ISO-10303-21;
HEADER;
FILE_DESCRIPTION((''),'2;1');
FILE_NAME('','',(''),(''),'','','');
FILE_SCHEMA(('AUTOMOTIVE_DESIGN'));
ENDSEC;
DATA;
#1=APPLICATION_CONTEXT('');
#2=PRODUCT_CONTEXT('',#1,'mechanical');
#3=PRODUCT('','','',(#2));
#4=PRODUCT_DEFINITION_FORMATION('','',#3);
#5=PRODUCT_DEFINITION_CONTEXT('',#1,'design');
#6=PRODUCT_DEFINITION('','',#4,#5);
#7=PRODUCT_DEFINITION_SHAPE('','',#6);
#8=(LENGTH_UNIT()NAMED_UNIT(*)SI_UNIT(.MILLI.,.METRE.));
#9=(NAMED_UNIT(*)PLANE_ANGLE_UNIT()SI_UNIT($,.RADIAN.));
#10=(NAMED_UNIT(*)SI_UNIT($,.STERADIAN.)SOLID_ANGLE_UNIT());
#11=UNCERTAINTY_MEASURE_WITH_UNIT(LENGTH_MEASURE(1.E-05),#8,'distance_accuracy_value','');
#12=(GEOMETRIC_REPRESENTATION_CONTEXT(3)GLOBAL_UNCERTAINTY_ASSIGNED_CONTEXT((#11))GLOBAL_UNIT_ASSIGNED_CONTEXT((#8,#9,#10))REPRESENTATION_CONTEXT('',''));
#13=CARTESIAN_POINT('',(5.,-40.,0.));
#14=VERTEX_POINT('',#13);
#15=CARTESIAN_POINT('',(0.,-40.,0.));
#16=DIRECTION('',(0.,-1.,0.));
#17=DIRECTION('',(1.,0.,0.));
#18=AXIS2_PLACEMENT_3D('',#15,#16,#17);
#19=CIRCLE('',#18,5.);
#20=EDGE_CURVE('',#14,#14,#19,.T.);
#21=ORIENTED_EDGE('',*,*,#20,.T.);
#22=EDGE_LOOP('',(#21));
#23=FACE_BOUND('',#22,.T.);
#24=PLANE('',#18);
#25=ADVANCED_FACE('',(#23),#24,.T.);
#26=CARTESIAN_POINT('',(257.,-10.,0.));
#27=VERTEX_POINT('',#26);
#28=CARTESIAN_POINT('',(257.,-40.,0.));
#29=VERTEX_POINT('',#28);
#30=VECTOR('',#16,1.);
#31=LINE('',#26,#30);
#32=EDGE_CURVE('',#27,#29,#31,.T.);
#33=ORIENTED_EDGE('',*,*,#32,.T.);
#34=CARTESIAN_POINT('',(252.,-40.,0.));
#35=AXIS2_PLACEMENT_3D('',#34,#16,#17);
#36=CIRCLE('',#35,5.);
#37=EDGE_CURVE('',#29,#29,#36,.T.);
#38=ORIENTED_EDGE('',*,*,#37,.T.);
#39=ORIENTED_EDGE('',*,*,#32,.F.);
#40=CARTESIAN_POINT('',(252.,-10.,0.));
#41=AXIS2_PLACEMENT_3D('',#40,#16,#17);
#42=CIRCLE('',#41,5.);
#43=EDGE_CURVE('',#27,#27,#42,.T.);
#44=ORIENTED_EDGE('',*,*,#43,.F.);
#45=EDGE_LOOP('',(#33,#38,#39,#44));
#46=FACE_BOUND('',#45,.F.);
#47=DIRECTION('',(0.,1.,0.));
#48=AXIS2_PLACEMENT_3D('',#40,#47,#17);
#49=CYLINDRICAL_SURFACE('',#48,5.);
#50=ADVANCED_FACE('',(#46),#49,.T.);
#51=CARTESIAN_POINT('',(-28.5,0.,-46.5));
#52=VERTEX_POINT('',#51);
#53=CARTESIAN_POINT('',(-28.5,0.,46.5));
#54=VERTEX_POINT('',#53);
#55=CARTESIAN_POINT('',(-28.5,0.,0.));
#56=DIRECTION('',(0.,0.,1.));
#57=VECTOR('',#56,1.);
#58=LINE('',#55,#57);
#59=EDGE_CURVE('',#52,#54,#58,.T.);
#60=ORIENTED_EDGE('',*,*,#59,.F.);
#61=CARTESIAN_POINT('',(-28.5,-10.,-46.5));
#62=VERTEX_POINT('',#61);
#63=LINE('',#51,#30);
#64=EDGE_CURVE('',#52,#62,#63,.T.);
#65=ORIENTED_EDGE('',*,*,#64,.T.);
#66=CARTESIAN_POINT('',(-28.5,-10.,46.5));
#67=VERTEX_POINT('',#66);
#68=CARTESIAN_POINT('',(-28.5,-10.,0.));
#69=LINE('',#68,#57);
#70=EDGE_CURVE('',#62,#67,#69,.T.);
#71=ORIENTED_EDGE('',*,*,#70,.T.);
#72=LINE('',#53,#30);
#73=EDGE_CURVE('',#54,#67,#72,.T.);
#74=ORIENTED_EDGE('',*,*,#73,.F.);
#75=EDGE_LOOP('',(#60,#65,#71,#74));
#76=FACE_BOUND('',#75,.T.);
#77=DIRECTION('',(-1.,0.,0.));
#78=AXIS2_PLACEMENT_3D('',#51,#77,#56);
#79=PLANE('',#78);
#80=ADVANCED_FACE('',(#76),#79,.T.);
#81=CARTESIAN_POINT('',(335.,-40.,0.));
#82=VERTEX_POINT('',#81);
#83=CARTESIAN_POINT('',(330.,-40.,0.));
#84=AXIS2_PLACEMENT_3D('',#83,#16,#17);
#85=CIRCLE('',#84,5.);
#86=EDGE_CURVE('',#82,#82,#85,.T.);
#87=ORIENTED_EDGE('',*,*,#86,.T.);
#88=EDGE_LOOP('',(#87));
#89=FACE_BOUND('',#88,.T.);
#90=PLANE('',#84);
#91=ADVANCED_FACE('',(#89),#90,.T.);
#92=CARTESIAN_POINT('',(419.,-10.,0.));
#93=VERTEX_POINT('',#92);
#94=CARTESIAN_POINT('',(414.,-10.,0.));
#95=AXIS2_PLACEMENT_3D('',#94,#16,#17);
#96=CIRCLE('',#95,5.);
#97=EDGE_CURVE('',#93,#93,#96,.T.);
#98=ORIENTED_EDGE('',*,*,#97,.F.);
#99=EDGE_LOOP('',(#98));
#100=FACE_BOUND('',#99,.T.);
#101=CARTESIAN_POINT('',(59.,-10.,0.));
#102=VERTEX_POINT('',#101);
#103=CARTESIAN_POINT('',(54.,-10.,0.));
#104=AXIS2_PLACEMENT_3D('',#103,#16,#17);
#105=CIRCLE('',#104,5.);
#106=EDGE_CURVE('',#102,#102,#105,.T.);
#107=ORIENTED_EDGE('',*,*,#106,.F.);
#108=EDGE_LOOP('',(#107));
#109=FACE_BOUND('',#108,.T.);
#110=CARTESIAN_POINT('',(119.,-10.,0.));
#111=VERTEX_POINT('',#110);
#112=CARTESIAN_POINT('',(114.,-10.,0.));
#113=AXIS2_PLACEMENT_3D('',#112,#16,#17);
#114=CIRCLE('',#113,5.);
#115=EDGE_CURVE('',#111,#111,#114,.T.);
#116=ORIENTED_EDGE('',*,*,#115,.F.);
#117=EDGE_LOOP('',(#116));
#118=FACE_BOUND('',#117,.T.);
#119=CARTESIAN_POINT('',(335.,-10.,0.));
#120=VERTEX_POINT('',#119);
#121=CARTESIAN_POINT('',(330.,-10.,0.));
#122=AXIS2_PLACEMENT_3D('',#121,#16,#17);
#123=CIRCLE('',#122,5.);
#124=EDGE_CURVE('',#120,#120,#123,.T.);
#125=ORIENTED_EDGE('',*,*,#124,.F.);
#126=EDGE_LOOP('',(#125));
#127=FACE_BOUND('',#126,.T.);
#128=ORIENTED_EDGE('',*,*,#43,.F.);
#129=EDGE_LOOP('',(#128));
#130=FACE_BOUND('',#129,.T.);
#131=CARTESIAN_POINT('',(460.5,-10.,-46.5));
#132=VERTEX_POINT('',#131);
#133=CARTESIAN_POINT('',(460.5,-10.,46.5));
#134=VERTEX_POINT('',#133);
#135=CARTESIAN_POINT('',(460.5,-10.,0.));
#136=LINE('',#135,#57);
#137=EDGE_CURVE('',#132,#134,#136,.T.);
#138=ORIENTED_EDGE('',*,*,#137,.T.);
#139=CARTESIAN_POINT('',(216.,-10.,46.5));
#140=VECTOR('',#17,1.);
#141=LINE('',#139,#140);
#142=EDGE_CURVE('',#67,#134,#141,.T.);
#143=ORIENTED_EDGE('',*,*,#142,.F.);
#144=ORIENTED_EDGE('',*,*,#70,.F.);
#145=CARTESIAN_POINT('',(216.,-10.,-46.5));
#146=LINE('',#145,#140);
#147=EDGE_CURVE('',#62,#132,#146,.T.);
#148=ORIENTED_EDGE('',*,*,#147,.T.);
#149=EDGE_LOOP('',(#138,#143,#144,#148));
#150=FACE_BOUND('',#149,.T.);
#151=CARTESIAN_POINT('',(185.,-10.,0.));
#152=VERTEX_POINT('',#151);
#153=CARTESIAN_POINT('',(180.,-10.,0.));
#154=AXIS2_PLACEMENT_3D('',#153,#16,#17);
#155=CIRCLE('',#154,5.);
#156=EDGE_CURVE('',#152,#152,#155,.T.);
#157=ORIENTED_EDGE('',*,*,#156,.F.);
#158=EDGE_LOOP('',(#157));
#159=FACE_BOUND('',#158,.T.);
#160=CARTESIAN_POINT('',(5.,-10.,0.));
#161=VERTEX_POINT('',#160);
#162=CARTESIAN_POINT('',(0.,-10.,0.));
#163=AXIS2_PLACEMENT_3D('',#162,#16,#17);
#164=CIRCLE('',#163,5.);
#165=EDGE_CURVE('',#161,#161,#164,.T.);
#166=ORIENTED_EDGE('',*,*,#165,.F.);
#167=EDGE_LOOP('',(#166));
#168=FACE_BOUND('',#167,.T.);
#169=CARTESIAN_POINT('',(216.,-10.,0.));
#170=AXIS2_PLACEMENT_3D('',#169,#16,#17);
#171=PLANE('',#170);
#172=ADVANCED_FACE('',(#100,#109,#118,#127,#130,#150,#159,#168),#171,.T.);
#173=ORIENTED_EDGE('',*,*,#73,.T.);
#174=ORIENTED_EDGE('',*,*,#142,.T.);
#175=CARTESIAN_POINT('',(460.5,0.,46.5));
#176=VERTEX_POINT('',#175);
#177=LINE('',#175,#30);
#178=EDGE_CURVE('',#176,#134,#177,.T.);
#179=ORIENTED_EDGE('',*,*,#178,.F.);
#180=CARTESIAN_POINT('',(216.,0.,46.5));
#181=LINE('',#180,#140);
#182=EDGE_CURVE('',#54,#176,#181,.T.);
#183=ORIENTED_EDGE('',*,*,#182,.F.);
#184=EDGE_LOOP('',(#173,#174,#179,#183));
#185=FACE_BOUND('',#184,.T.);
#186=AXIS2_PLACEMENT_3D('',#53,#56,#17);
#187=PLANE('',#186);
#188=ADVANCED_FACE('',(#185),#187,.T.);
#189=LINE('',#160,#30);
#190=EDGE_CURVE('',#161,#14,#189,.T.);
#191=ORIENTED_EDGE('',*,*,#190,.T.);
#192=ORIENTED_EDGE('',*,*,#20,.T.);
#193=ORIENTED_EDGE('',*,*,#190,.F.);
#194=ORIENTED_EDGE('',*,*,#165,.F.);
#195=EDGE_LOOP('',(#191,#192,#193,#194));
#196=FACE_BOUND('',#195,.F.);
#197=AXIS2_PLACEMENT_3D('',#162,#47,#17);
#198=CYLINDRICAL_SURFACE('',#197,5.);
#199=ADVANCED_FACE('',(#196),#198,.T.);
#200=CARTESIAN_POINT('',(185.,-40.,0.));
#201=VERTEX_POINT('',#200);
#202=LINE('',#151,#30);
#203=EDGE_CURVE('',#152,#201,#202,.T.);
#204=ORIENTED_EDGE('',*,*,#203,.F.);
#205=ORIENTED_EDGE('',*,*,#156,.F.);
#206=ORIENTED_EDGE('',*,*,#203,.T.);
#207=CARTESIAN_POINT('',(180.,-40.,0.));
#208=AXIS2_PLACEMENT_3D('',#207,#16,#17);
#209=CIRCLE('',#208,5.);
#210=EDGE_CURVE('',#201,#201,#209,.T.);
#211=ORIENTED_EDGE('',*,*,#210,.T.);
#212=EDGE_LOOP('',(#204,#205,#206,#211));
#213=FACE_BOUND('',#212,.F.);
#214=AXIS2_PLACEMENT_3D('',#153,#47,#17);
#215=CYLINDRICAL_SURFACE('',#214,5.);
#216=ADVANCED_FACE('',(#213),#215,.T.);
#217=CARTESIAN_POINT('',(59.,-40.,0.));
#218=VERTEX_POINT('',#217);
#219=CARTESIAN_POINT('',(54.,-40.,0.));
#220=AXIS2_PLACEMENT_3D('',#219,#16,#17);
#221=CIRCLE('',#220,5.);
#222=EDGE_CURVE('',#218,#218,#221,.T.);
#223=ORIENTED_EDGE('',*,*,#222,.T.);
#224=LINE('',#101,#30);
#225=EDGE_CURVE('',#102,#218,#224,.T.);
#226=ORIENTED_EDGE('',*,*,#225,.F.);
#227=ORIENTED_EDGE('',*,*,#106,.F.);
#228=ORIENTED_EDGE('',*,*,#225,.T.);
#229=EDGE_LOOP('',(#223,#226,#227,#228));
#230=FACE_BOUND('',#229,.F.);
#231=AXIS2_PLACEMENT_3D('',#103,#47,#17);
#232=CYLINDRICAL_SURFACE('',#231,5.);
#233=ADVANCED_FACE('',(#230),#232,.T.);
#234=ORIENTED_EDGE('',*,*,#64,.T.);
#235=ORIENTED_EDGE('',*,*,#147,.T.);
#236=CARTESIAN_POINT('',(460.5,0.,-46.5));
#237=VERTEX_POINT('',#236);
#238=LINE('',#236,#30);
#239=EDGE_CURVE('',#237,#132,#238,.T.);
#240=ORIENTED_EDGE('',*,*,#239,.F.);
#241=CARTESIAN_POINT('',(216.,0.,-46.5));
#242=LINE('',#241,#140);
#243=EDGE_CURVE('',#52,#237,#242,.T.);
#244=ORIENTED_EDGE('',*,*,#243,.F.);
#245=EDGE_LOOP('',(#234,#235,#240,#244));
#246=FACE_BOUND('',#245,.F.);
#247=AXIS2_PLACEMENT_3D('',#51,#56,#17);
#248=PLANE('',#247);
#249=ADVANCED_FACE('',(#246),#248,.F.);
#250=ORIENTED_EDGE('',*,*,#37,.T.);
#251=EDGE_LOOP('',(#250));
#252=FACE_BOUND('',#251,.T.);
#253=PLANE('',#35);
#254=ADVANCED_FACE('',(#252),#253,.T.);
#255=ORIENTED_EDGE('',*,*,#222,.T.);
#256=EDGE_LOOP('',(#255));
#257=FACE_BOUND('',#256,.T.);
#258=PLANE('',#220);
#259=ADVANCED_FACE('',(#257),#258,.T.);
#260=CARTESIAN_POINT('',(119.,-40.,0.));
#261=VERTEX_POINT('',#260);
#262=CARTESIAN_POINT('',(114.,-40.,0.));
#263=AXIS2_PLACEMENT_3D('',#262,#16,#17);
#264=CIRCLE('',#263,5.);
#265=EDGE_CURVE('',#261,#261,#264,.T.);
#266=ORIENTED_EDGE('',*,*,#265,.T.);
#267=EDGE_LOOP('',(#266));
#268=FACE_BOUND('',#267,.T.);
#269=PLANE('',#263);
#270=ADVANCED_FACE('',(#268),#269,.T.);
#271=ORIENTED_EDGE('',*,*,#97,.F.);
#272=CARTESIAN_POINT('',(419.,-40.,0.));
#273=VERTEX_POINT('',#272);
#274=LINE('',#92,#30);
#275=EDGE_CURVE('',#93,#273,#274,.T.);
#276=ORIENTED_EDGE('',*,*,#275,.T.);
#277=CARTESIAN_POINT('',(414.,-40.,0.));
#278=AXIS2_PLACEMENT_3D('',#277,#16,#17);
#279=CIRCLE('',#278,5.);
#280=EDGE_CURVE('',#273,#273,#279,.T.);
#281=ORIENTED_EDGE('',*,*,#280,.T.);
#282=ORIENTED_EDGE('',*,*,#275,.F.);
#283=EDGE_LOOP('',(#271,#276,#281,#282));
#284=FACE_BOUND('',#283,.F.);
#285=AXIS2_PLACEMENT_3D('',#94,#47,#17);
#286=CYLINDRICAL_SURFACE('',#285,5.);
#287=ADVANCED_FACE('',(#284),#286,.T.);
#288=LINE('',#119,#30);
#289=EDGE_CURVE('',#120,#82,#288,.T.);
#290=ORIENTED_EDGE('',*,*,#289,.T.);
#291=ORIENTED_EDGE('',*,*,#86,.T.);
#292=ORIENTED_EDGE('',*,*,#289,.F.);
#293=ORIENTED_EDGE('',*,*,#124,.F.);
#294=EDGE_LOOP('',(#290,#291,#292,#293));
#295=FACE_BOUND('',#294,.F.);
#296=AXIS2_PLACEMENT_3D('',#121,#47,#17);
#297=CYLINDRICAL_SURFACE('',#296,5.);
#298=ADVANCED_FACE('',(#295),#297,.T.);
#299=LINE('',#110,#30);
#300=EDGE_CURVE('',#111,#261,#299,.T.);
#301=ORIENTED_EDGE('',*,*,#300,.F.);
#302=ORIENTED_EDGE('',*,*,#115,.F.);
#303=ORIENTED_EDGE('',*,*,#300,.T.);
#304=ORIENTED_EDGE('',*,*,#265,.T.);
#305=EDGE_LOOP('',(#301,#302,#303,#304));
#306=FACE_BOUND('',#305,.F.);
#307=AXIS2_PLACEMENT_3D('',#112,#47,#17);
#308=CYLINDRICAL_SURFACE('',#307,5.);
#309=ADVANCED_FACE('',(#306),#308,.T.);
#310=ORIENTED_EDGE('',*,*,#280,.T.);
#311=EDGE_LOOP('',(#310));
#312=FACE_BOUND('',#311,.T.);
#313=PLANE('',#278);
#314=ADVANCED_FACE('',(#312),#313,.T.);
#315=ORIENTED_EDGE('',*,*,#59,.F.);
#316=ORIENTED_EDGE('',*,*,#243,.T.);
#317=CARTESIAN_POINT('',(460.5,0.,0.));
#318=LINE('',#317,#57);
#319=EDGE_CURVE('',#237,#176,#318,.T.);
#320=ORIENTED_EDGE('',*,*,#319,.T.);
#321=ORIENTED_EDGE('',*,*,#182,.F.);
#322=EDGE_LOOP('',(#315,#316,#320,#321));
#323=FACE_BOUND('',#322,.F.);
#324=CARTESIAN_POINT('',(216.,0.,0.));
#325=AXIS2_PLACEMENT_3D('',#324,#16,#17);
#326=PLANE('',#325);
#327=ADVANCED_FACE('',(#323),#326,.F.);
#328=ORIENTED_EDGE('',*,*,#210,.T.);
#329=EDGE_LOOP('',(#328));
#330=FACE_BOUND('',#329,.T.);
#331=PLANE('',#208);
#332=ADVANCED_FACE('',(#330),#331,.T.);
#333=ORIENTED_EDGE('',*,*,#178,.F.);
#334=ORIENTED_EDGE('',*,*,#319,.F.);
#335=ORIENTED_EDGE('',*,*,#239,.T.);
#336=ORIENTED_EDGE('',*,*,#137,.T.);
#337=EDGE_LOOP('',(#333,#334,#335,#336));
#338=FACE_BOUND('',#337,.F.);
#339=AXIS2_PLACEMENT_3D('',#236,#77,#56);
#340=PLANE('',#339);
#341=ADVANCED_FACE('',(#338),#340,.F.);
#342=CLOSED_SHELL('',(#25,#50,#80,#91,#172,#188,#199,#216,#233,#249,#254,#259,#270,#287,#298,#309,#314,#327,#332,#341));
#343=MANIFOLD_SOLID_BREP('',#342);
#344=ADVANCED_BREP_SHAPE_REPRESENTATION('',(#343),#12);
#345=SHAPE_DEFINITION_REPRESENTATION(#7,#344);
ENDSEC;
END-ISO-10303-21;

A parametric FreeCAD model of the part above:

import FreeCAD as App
import Part
import Sketcher
from FreeCAD import Vector
Q = App.Units.Quantity


def add_polygon(sketch, points):
    """Adds a closed chain of lines whose ends are joined by coincident constraints."""
    first, n = sketch.GeometryCount, len(points)
    for a, b in zip(points, points[1:] + points[:1]):
        sketch.addGeometry(Part.LineSegment(App.Vector(*a, 0), App.Vector(*b, 0)), False)
    for i in range(n):
        sketch.addConstraint(Sketcher.Constraint("Coincident", first + i, 2, first + (i + 1) % n, 1))

doc = App.newDocument("Part")
body = doc.addObject("PartDesign::Body", "Body")

sketch1 = body.newObject("Sketcher::SketchObject", "Sketch")
sketch1.AttachmentSupport = (doc.getObject("XZ_Plane"), [""])
sketch1.MapMode = "FlatFace"
add_polygon(sketch1, [(-28.5, 46.5), (-28.5, -46.5), (460.5, -46.5), (460.5, 46.5)])
sketch1.addConstraint([
    Sketcher.Constraint("Vertical", 0),
    Sketcher.Constraint("Horizontal", 1),
    Sketcher.Constraint("Vertical", 2),
    Sketcher.Constraint("Horizontal", 3),
    Sketcher.Constraint("DistanceX", 1, 1, 1, 2, Q("489 mm")),
    Sketcher.Constraint("DistanceY", 0, 2, 0, 1, Q("93 mm")),
    Sketcher.Constraint("DistanceX", 0, 2, -1, 1, Q("28.5 mm")),
    Sketcher.Constraint("DistanceY", 0, 2, -1, 1, Q("46.5 mm")),
])
pad1 = body.newObject("PartDesign::Pad", "Pad")
pad1.Profile = sketch1
pad1.Length = 10

sketch2 = body.newObject("Sketcher::SketchObject", "Sketch001")
sketch2.AttachmentSupport = (doc.getObject("XZ_Plane"), [""])
sketch2.MapMode = "FlatFace"
sketch2.AttachmentOffset = App.Placement(Vector(0, 0, 10), App.Rotation())
sketch2.addGeometry([
    Part.Circle(Vector(0, 0, 0), Vector(0, 0, 1), 5),
    Part.Circle(Vector(54, 0, 0), Vector(0, 0, 1), 5),
    Part.Circle(Vector(114, 0, 0), Vector(0, 0, 1), 5),
    Part.Circle(Vector(180, 0, 0), Vector(0, 0, 1), 5),
    Part.Circle(Vector(252, 0, 0), Vector(0, 0, 1), 5),
    Part.Circle(Vector(330, 0, 0), Vector(0, 0, 1), 5),
    Part.Circle(Vector(414, 0, 0), Vector(0, 0, 1), 5),
], False)
sketch2.addConstraint([
    Sketcher.Constraint("Coincident", 0, 3, -1, 1),
    Sketcher.Constraint("Equal", 0, 1),
    Sketcher.Constraint("Equal", 1, 2),
    Sketcher.Constraint("Equal", 2, 3),
    Sketcher.Constraint("Equal", 3, 4),
    Sketcher.Constraint("Equal", 4, 5),
    Sketcher.Constraint("Equal", 5, 6),
    Sketcher.Constraint("PointOnObject", 1, 3, -1),
    Sketcher.Constraint("PointOnObject", 2, 3, -1),
    Sketcher.Constraint("PointOnObject", 3, 3, -1),
    Sketcher.Constraint("PointOnObject", 4, 3, -1),
    Sketcher.Constraint("PointOnObject", 5, 3, -1),
    Sketcher.Constraint("PointOnObject", 6, 3, -1),
    Sketcher.Constraint("Diameter", 0, Q("10 mm")),
    Sketcher.Constraint("DistanceX", -1, 1, 1, 3, Q("54 mm")),
    Sketcher.Constraint("DistanceX", -1, 1, 2, 3, Q("114 mm")),
    Sketcher.Constraint("DistanceX", -1, 1, 3, 3, Q("180 mm")),
    Sketcher.Constraint("DistanceX", -1, 1, 4, 3, Q("252 mm")),
    Sketcher.Constraint("DistanceX", -1, 1, 5, 3, Q("330 mm")),
    Sketcher.Constraint("DistanceX", -1, 1, 6, 3, Q("414 mm")),
])
pad2 = body.newObject("PartDesign::Pad", "Pad001")
pad2.Profile = sketch2
pad2.Length = 30

doc.recompute()
